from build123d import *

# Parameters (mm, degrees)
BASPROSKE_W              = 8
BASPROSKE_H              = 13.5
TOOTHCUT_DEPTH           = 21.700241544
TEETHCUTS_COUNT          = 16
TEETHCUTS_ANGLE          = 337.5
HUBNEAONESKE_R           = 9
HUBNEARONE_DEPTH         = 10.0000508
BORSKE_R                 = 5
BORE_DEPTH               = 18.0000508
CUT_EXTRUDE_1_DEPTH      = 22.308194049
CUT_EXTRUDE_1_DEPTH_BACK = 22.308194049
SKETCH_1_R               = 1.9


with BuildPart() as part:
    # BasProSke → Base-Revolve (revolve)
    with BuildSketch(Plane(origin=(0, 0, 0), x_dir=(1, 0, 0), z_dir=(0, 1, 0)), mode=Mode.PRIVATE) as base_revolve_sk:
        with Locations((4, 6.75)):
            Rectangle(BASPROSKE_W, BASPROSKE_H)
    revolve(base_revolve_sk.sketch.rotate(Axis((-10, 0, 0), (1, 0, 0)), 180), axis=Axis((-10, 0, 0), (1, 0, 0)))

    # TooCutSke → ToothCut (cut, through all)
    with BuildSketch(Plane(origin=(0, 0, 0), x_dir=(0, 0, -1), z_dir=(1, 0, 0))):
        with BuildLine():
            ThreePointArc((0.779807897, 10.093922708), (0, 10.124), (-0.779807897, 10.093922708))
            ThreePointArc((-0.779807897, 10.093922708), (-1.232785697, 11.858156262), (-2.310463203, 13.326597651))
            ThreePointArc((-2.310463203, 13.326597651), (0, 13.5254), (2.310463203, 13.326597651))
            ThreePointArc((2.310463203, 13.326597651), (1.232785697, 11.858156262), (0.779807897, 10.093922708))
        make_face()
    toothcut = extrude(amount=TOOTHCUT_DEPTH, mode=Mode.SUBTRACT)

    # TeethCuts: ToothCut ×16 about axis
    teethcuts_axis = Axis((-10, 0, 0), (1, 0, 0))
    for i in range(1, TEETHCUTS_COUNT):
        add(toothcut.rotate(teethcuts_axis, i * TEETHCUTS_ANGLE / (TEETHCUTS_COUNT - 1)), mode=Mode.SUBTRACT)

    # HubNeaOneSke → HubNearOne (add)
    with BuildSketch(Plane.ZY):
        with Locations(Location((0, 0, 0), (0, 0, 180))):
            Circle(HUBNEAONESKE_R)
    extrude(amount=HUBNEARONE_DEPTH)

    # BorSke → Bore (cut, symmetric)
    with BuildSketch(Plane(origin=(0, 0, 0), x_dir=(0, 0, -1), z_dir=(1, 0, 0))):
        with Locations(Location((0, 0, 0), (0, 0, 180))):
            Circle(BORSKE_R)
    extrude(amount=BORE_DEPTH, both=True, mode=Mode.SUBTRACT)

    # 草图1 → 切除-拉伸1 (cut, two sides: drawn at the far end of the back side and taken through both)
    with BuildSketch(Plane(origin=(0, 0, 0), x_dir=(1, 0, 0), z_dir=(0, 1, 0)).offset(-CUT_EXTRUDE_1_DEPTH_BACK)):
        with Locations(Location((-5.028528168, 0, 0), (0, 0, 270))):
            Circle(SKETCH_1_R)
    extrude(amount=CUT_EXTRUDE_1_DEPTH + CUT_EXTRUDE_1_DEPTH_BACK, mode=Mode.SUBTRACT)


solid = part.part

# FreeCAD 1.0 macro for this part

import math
import FreeCAD as App
import Part
import Sketcher

V = App.Vector
Q = App.Units.Quantity


def add_polygon(sketch, points):
    """Adds a closed chain of lines whose ends are joined by coincident constraints."""
    first, n = sketch.GeometryCount, len(points)
    for a, b in zip(points, points[1:] + points[:1]):
        sketch.addGeometry(Part.LineSegment(App.Vector(*a, 0), App.Vector(*b, 0)), False)
    for i in range(n):
        sketch.addConstraint(Sketcher.Constraint("Coincident", first + i, 2, first + (i + 1) % n, 1))

doc = App.newDocument("Part")
body = doc.addObject("PartDesign::Body", "Body")

# Sketch on XZ plane
sketch1 = body.newObject("Sketcher::SketchObject", "Sketch")
sketch1.AttachmentSupport = (doc.getObject("XZ_Plane"), [""])
sketch1.MapMode = "FlatFace"
add_polygon(sketch1, [(0, -13.5), (0, 0), (8, 0), (8, -13.5)])  # lines 0-3
sketch1.addConstraint(Sketcher.Constraint("Vertical", 0))
sketch1.addConstraint(Sketcher.Constraint("Horizontal", 1))
sketch1.addConstraint(Sketcher.Constraint("Vertical", 2))
sketch1.addConstraint(Sketcher.Constraint("Horizontal", 3))
sketch1.addConstraint(Sketcher.Constraint("Coincident", 0, 2, -1, 1))
sketch1.addConstraint(Sketcher.Constraint("DistanceX", 1, 1, 1, 2, Q("8 mm")))
sketch1.addConstraint(Sketcher.Constraint("DistanceY", 0, 1, 0, 2, Q("13.5 mm")))
revolution = body.newObject("PartDesign::Revolution", "Revolution")
revolution.Profile = sketch1
revolution.ReferenceAxis = (sketch1, ["H_Axis"])
revolution.Angle = 360

# Sketch on YZ plane
sketch2 = body.newObject("Sketcher::SketchObject", "Sketch001")
sketch2.AttachmentSupport = (doc.getObject("YZ_Plane"), [""])
sketch2.MapMode = "FlatFace"
sketch2.addGeometry(Part.ArcOfCircle(Part.Circle(V(0, 0, 0), V(0, 0, 1), 10.124), math.radians(-4.417622), math.radians(4.417622)), False)
sketch2.addGeometry(Part.ArcOfCircle(Part.Circle(V(9.804012, -5.571045, 0), V(0, 0, 1), 4.8), math.radians(42.788018), math.radians(86.537343)), False)
sketch2.addGeometry(Part.ArcOfCircle(Part.Circle(V(0, 0, 0), V(0, 0, 1), 13.5254), math.radians(-9.835733), math.radians(9.835733)), False)
sketch2.addGeometry(Part.ArcOfCircle(Part.Circle(V(9.804012, 5.571045, 0), V(0, 0, 1), 4.8), math.radians(-86.537343), math.radians(-42.788018)), False)
sketch2.addConstraint(Sketcher.Constraint("Coincident", 0, 1, 1, 2))
sketch2.addConstraint(Sketcher.Constraint("Coincident", 1, 1, 2, 1))
sketch2.addConstraint(Sketcher.Constraint("Coincident", 2, 2, 3, 2))
sketch2.addConstraint(Sketcher.Constraint("Coincident", 3, 1, 0, 2))
sketch2.addConstraint(Sketcher.Constraint("Coincident", 0, 3, -1, 1))
sketch2.addConstraint(Sketcher.Constraint("Coincident", 2, 3, -1, 1))
sketch2.addConstraint(Sketcher.Constraint("Equal", 1, 3))
sketch2.addConstraint(Sketcher.Constraint("Symmetric", 1, 3, 3, 3, -1))
sketch2.addConstraint(Sketcher.Constraint("Radius", 1, Q("4.8 mm")))
sketch2.addConstraint(Sketcher.Constraint("Radius", 0, Q("10.124 mm")))
sketch2.addConstraint(Sketcher.Constraint("Radius", 2, Q("13.5254 mm")))
sketch2.addConstraint(Sketcher.Constraint("DistanceY", 1, 3, 3, 3, Q("11.14209 mm")))
sketch2.addConstraint(Sketcher.Constraint("DistanceX", 1, 3, 0, 1, Q("0.28991 mm")))
pocket1 = body.newObject("PartDesign::Pocket", "Pocket")
pocket1.Profile = sketch2
pocket1.Type = "ThroughAll"
pocket1.Reversed = True
doc.recompute()

polarpattern = body.newObject("PartDesign::PolarPattern", "PolarPattern")
polarpattern.Originals = [pocket1]
polarpattern.Axis = (doc.getObject("X_Axis"), [""])
polarpattern.Angle = 360
polarpattern.Occurrences = 16
body.Tip = polarpattern

# Sketch on YZ plane
sketch3 = body.newObject("Sketcher::SketchObject", "Sketch002")
sketch3.AttachmentSupport = (doc.getObject("YZ_Plane"), [""])
sketch3.MapMode = "FlatFace"
sketch3.addGeometry(Part.Circle(V(0, 0, 0), V(0, 0, 1), 9), False)
sketch3.addConstraint(Sketcher.Constraint("Coincident", 0, 3, -1, 1))
sketch3.addConstraint(Sketcher.Constraint("Diameter", 0, Q("18 mm")))
pad1 = body.newObject("PartDesign::Pad", "Pad")
pad1.Profile = sketch3
pad1.Length = 10.000051
pad1.Reversed = True

# Sketch on YZ plane
sketch4 = body.newObject("Sketcher::SketchObject", "Sketch003")
sketch4.AttachmentSupport = (doc.getObject("YZ_Plane"), [""])
sketch4.MapMode = "FlatFace"
sketch4.addGeometry(Part.Circle(V(0, 0, 0), V(0, 0, 1), 5), False)
sketch4.addConstraint(Sketcher.Constraint("Coincident", 0, 3, -1, 1))
sketch4.addConstraint(Sketcher.Constraint("Diameter", 0, Q("10 mm")))
pocket2 = body.newObject("PartDesign::Pocket", "Pocket001")
pocket2.Profile = sketch4
pocket2.Length = 36.000102
pocket2.Midplane = True

# Sketch on XZ plane
sketch5 = body.newObject("Sketcher::SketchObject", "Sketch004")
sketch5.AttachmentSupport = (doc.getObject("XZ_Plane"), [""])
sketch5.MapMode = "FlatFace"
sketch5.addGeometry(Part.Circle(V(-5.028528, 0, 0), V(0, 0, 1), 1.9), False)
sketch5.addConstraint(Sketcher.Constraint("PointOnObject", 0, 3, -1))
sketch5.addConstraint(Sketcher.Constraint("Diameter", 0, Q("3.8 mm")))
sketch5.addConstraint(Sketcher.Constraint("DistanceX", 0, 3, -1, 1, Q("5.028528 mm")))
pocket3 = body.newObject("PartDesign::Pocket", "Pocket002")
pocket3.Profile = sketch5
pocket3.Type = "ThroughAll"
pocket3.Midplane = True

doc.recompute()
